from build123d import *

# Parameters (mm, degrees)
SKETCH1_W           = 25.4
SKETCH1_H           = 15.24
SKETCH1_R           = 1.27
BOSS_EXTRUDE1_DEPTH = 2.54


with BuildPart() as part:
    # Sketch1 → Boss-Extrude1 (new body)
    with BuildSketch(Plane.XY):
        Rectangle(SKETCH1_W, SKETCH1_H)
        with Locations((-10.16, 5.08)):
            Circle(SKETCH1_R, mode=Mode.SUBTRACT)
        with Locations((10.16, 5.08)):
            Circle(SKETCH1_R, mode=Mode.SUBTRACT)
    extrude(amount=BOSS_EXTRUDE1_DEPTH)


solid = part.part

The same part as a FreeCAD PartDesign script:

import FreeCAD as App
import Part
import Sketcher

V = App.Vector
Q = App.Units.Quantity


def add_polygon(sketch, points):
    """Adds a closed chain of lines whose ends are joined by coincident constraints."""
    first, n = sketch.GeometryCount, len(points)
    for a, b in zip(points, points[1:] + points[:1]):
        sketch.addGeometry(Part.LineSegment(App.Vector(*a, 0), App.Vector(*b, 0)), False)
    for i in range(n):
        sketch.addConstraint(Sketcher.Constraint("Coincident", first + i, 2, first + (i + 1) % n, 1))

doc = App.newDocument("Part")
body = doc.addObject("PartDesign::Body", "Body")

sketch1 = doc.addObject("Sketcher::SketchObject", "Sketch")
body.addObject(sketch1)
sketch1.AttachmentSupport = (doc.XY_Plane, [""])
sketch1.MapMode = "FlatFace"
add_polygon(sketch1, [(-12.7, 7.6), (-12.7, -7.6), (12.7, -7.6), (12.7, 7.6)])
sketch1.addGeometry(Part.Circle(V(-10.2, 5.1, 0), V(0, 0, 1), 1.3), False)
sketch1.addGeometry(Part.Circle(V(10.2, 5.1, 0), V(0, 0, 1), 1.3), False)
sketch1.addConstraint([
    Sketcher.Constraint("Vertical", 0),
    Sketcher.Constraint("Horizontal", 1),
    Sketcher.Constraint("Vertical", 2),
    Sketcher.Constraint("Horizontal", 3),
    Sketcher.Constraint("Equal", 4, 5),
    Sketcher.Constraint("Symmetric", 0, 2, 2, 2, -1, 1),
    Sketcher.Constraint("Symmetric", 4, 3, 5, 3, -2),
    Sketcher.Constraint("Diameter", 4, Q("0.1 in")),
    Sketcher.Constraint("DistanceX", 1, 1, 1, 2, Q("1 in")),
    Sketcher.Constraint("DistanceY", 0, 2, 0, 1, Q("0.6 in")),
    Sketcher.Constraint("DistanceX", 4, 3, -1, 1, Q("0.4 in")),
    Sketcher.Constraint("DistanceY", -1, 1, 4, 3, Q("0.2 in")),
])
pad1 = doc.addObject("PartDesign::Pad", "Pad")
body.addObject(pad1)
pad1.Profile = sketch1
pad1.Length = Q("0.1 in")

doc.recompute()
